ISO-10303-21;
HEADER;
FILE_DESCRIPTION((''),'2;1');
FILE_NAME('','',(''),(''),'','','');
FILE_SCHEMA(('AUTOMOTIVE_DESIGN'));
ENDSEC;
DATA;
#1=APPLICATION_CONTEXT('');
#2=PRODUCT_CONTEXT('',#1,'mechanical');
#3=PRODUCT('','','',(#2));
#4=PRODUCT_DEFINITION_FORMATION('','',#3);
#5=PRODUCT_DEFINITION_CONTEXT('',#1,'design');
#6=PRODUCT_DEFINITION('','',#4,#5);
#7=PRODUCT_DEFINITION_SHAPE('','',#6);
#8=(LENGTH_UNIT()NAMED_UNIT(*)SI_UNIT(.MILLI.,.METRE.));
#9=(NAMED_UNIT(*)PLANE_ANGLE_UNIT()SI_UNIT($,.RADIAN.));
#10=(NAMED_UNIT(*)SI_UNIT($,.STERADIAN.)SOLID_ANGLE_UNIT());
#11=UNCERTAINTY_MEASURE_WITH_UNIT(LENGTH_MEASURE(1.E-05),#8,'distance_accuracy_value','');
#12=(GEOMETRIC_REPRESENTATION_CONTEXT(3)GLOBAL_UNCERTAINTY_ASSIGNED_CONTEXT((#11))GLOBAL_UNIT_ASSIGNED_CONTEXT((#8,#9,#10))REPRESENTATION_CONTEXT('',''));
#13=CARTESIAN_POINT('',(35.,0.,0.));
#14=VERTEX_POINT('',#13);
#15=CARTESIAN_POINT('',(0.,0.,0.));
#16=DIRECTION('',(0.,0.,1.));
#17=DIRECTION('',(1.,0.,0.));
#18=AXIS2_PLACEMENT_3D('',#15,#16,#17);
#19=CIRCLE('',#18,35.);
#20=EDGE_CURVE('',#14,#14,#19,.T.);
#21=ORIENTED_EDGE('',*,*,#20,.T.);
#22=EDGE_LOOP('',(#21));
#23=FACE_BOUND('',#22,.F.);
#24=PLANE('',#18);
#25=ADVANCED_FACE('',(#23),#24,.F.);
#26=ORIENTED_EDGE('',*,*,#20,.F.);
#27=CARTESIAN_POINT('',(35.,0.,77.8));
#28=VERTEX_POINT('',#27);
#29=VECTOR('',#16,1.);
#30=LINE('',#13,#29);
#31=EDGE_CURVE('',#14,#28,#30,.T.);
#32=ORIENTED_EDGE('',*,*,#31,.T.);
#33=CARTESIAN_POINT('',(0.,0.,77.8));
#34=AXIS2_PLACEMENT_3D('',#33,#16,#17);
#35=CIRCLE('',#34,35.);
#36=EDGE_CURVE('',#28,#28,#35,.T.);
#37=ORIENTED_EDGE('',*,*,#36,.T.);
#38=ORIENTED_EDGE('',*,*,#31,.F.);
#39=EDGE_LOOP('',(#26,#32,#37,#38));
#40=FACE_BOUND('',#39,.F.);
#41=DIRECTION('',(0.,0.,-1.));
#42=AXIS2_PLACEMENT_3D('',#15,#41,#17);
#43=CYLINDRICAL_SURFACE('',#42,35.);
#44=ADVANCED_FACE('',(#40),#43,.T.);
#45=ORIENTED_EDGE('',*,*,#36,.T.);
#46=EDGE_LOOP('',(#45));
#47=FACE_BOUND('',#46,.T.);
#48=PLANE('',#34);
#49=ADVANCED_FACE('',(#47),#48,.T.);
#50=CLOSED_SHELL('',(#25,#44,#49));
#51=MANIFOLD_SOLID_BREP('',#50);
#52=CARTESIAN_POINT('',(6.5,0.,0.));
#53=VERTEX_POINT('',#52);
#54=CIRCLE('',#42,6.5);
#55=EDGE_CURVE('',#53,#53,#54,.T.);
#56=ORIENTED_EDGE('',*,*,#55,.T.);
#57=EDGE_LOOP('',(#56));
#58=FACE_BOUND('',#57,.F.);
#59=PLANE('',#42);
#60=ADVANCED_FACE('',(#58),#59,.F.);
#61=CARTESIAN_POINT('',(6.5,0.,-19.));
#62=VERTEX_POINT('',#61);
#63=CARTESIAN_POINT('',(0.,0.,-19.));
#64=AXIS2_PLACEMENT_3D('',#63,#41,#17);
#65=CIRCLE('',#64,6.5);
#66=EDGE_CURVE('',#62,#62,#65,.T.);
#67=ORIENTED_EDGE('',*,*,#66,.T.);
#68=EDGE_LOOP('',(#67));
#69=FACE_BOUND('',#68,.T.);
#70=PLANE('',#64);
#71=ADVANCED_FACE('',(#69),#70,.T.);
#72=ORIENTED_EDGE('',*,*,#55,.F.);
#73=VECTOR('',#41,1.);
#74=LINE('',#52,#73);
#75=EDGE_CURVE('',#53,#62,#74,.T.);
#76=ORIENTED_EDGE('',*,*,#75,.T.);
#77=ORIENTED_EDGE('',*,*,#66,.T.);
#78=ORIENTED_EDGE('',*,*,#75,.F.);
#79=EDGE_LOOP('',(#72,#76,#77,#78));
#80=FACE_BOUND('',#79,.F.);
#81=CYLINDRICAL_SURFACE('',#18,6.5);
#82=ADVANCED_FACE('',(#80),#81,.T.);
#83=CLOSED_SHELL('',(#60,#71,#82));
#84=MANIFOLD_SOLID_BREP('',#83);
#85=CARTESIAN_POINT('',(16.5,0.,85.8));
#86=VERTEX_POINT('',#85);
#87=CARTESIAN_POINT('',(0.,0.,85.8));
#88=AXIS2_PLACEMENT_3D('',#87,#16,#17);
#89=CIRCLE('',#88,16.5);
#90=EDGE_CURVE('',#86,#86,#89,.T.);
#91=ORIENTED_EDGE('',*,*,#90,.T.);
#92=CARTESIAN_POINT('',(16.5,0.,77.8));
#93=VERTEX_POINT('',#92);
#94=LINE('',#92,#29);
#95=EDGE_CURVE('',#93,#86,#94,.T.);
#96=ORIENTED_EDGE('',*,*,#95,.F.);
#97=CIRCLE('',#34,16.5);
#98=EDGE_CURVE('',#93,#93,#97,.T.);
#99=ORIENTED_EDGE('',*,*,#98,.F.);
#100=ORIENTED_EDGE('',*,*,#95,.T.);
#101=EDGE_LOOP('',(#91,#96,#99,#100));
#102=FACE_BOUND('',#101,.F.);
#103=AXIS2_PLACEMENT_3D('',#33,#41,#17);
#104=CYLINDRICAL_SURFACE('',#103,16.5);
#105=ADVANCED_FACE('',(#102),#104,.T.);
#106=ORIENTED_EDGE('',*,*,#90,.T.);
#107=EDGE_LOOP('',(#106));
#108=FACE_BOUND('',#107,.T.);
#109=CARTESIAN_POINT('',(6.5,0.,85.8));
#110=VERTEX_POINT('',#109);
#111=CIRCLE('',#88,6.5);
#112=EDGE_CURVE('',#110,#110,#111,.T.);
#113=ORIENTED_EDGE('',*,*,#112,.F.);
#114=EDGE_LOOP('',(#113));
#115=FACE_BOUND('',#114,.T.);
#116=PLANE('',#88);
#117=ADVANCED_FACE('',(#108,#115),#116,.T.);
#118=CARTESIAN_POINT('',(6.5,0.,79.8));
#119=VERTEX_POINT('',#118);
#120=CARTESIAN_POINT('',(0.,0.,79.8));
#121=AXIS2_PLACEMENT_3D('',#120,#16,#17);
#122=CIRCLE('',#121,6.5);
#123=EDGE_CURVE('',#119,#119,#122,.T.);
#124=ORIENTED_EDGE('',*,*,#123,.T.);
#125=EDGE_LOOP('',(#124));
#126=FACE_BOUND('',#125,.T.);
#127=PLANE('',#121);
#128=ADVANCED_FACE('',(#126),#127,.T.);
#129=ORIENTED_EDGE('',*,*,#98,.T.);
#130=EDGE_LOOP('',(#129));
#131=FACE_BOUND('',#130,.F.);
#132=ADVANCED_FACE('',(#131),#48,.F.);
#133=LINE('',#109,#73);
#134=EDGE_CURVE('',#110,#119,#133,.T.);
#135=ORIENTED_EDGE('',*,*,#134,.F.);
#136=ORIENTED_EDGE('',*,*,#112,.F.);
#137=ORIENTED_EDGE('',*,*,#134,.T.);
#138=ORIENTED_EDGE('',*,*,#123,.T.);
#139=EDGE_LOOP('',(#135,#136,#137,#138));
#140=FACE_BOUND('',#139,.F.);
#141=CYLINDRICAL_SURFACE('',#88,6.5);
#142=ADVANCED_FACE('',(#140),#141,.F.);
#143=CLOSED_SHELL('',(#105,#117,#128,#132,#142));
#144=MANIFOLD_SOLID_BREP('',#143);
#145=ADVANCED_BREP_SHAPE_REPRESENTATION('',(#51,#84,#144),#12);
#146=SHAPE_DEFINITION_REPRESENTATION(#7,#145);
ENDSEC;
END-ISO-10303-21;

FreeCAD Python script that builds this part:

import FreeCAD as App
import Part
import Sketcher
from FreeCAD import Vector
Q = App.Units.Quantity

doc = App.newDocument("Part")
body = doc.addObject("PartDesign::Body", "Body")

# Sketch on XY plane
sketch1 = body.newObject("Sketcher::SketchObject", "Sketch")
sketch1.AttachmentSupport = (doc.getObject("XY_Plane"), [""])
sketch1.MapMode = "FlatFace"
sketch1.addGeometry(Part.Circle(Vector(0, 0, 0), Vector(0, 0, 1), 35), False)
sketch1.addConstraint(Sketcher.Constraint("Coincident", 0, 3, -1, 1))
sketch1.addConstraint(Sketcher.Constraint("Diameter", 0, Q("70 mm")))
pad1 = body.newObject("PartDesign::Pad", "Pad")
pad1.Profile = sketch1
pad1.Length = 77.8
body2 = doc.addObject("PartDesign::Body", "Body001")

# Sketch on XY plane
sketch2 = body2.newObject("Sketcher::SketchObject", "Sketch001")
sketch2.AttachmentSupport = (doc.getObject("XY_Plane001"), [""])
sketch2.MapMode = "FlatFace"
sketch2.AttachmentOffset = App.Placement(Vector(0, 0, 77.8), App.Rotation())
sketch2.addGeometry(Part.Circle(Vector(0, 0, 0), Vector(0, 0, 1), 16), False)
sketch2.addConstraint(Sketcher.Constraint("Coincident", 0, 3, -1, 1))
sketch2.addConstraint(Sketcher.Constraint("Diameter", 0, Q("33 mm")))
pad2 = body2.newObject("PartDesign::Pad", "Pad001")
pad2.Profile = sketch2
pad2.Length = 8

# Sketch on XY plane
sketch3 = body2.newObject("Sketcher::SketchObject", "Sketch002")
sketch3.AttachmentSupport = (doc.getObject("XY_Plane001"), [""])
sketch3.MapMode = "FlatFace"
sketch3.AttachmentOffset = App.Placement(Vector(0, 0, 85.8), App.Rotation())
sketch3.addGeometry(Part.Circle(Vector(0, 0, 0), Vector(0, 0, 1), 6), False)
sketch3.addConstraint(Sketcher.Constraint("Coincident", 0, 3, -1, 1))
sketch3.addConstraint(Sketcher.Constraint("Diameter", 0, Q("13 mm")))
pocket1 = body2.newObject("PartDesign::Pocket", "Pocket")
pocket1.Profile = sketch3
pocket1.Length = 6
body3 = doc.addObject("PartDesign::Body", "Body002")

# Sketch on XY plane
sketch4 = body3.newObject("Sketcher::SketchObject", "Sketch003")
sketch4.AttachmentSupport = (doc.getObject("XY_Plane002"), [""])
sketch4.MapMode = "FlatFace"
sketch4.addGeometry(Part.Circle(Vector(0, 0, 0), Vector(0, 0, 1), 6), False)
sketch4.addConstraint(Sketcher.Constraint("Coincident", 0, 3, -1, 1))
sketch4.addConstraint(Sketcher.Constraint("Diameter", 0, Q("13 mm")))
pad3 = body3.newObject("PartDesign::Pad", "Pad002")
pad3.Profile = sketch4
pad3.Length = 19
pad3.Reversed = True

doc.recompute()
